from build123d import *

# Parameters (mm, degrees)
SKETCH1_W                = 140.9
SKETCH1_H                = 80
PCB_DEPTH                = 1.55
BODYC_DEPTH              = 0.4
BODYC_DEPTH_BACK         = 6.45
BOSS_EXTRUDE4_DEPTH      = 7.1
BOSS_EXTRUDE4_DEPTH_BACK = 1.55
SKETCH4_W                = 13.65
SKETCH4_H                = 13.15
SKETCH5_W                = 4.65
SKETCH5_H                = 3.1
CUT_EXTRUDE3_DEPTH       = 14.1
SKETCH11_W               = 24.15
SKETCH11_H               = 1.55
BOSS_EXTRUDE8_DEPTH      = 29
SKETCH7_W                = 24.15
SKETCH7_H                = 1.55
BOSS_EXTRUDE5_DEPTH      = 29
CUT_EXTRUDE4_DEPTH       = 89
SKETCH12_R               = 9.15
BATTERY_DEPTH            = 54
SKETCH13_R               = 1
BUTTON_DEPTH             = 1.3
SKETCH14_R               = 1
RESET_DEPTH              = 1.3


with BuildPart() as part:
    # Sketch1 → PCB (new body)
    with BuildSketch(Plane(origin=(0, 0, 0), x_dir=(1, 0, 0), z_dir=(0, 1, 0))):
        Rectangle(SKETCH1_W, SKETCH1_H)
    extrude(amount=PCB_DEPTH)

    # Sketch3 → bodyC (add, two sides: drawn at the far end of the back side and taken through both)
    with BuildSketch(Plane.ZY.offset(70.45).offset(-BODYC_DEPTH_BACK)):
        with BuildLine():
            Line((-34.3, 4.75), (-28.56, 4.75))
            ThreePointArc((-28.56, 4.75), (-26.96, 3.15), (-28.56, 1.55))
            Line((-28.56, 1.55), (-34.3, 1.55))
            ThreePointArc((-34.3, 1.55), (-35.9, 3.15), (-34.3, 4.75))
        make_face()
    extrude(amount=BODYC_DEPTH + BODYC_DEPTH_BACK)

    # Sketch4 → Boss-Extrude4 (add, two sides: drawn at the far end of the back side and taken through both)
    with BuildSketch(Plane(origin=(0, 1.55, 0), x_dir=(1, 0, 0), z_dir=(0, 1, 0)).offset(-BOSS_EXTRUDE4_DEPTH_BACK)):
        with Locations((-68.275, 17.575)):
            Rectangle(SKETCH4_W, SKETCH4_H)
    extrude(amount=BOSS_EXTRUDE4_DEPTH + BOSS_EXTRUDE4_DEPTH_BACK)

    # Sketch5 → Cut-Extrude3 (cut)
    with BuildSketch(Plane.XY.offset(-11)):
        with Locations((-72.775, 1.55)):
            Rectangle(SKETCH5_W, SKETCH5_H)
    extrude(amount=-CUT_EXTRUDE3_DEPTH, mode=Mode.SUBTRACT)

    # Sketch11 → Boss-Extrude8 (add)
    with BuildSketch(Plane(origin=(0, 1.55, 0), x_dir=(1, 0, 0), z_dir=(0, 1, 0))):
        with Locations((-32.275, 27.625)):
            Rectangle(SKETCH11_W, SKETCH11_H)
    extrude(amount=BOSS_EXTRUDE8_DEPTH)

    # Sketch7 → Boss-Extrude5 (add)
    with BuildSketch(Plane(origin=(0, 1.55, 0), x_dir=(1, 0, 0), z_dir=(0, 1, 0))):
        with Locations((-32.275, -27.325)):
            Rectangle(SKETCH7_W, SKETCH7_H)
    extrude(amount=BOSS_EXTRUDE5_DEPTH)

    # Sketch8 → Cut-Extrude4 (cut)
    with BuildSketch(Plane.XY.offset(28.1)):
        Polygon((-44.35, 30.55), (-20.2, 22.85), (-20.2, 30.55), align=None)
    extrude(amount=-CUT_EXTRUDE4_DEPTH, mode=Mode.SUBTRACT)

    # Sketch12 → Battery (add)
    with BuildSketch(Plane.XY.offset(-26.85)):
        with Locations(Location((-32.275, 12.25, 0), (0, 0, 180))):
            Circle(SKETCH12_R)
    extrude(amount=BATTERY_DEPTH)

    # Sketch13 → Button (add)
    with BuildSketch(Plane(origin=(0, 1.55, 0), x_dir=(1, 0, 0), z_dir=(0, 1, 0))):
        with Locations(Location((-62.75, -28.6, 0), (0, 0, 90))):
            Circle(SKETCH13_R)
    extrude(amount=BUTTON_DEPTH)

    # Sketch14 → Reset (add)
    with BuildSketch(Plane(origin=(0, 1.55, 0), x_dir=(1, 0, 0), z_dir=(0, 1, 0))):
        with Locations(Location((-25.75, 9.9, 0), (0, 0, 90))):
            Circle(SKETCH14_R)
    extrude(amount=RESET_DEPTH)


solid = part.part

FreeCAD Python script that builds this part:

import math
import FreeCAD as App
import Part
import Sketcher
Q = App.Units.Quantity


def add_polygon(sketch, points):
    """Adds a closed chain of lines whose ends are joined by coincident constraints."""
    first, n = sketch.GeometryCount, len(points)
    for a, b in zip(points, points[1:] + points[:1]):
        sketch.addGeometry(Part.LineSegment(App.Vector(*a, 0), App.Vector(*b, 0)), False)
    for i in range(n):
        sketch.addConstraint(Sketcher.Constraint("Coincident", first + i, 2, first + (i + 1) % n, 1))

doc = App.newDocument("Part")
body = doc.addObject("PartDesign::Body", "Body")

# Sketch on XZ plane
sketch1 = doc.addObject("Sketcher::SketchObject", "Sketch")
body.addObject(sketch1)
sketch1.AttachmentSupport = (doc.XZ_Plane, [""])
sketch1.MapMode = "FlatFace"
add_polygon(sketch1, [(-70, -40), (-70, 40), (70, 40), (70, -40)])  # lines 0-3
sketch1.addConstraint([
    Sketcher.Constraint("Vertical", 0),
    Sketcher.Constraint("Horizontal", 1),
    Sketcher.Constraint("Vertical", 2),
    Sketcher.Constraint("Horizontal", 3),
    Sketcher.Constraint("Symmetric", 0, 2, 2, 2, -1, 1),
    Sketcher.Constraint("DistanceY", 0, 1, 0, 2, Q("80 mm")),
    Sketcher.Constraint("DistanceX", 1, 1, 1, 2, Q("140.9 mm")),
])
pad1 = doc.addObject("PartDesign::Pad", "Pad")
body.addObject(pad1)
pad1.Profile = sketch1
pad1.Length = 1.55
pad1.Reversed = True

# Sketch on YZ plane
sketch2 = doc.addObject("Sketcher::SketchObject", "Sketch001")
body.addObject(sketch2)
sketch2.AttachmentSupport = (doc.YZ_Plane, [""])
sketch2.MapMode = "FlatFace"
sketch2.AttachmentOffset = App.Placement(App.Vector(0, 0, -70.45), App.Rotation())
sketch2.addGeometry([
    Part.LineSegment(App.Vector(4.8, -28.6, 0), App.Vector(4.8, -34.3, 0)),
    Part.ArcOfCircle(Part.Circle(App.Vector(3.1, -34.3, 0), App.Vector(0, 0, 1), 1.6), math.radians(180), math.radians(360)),
    Part.LineSegment(App.Vector(1.6, -34.3, 0), App.Vector(1.6, -28.6, 0)),
    Part.ArcOfCircle(Part.Circle(App.Vector(3.1, -28.6, 0), App.Vector(0, 0, 1), 1.6), math.radians(0), math.radians(180)),
], False)
sketch2.addConstraint([
    Sketcher.Constraint("Tangent", 0, 2, 1, 2),
    Sketcher.Constraint("Tangent", 1, 1, 2, 1),
    Sketcher.Constraint("Tangent", 2, 2, 3, 2),
    Sketcher.Constraint("Tangent", 3, 1, 0, 1),
    Sketcher.Constraint("Vertical", 0),
    Sketcher.Constraint("Vertical", 2),
    Sketcher.Constraint("Radius", 1, Q("1.6 mm")),
    Sketcher.Constraint("DistanceY", 0, 2, 0, 1, Q("5.74 mm")),
    Sketcher.Constraint("DistanceY", 1, 3, -1, 1, Q("34.3 mm")),
    Sketcher.Constraint("DistanceX", -1, 1, 1, 3, Q("3.15 mm")),
])
pad2 = doc.addObject("PartDesign::Pad", "Pad001")
body.addObject(pad2)
pad2.Profile = sketch2
pad2.Type = "TwoLengths"
pad2.Length = 0.4
pad2.Length2 = 6.45
pad2.Reversed = True

# Sketch on XZ plane
sketch3 = doc.addObject("Sketcher::SketchObject", "Sketch002")
body.addObject(sketch3)
sketch3.AttachmentSupport = (doc.XZ_Plane, [""])
sketch3.MapMode = "FlatFace"
sketch3.AttachmentOffset = App.Placement(App.Vector(0, 0, -1.55), App.Rotation())
add_polygon(sketch3, [(-75, -24), (-75, -11), (-61, -11), (-61, -24)])  # lines 0-3
sketch3.addConstraint([
    Sketcher.Constraint("Vertical", 0),
    Sketcher.Constraint("Horizontal", 1),
    Sketcher.Constraint("Vertical", 2),
    Sketcher.Constraint("Horizontal", 3),
    Sketcher.Constraint("DistanceY", 0, 2, -1, 1, Q("11 mm")),
    Sketcher.Constraint("DistanceX", 1, 1, 1, 2, Q("13.65 mm")),
    Sketcher.Constraint("DistanceY", 0, 1, 0, 2, Q("13.15 mm")),
    Sketcher.Constraint("DistanceX", 0, 2, -1, 1, Q("75.1 mm")),
])
pad3 = doc.addObject("PartDesign::Pad", "Pad002")
body.addObject(pad3)
pad3.Profile = sketch3
pad3.Type = "TwoLengths"
pad3.Length = 7.1
pad3.Length2 = 1.55
pad3.Reversed = True

# Sketch on XY plane
sketch4 = doc.addObject("Sketcher::SketchObject", "Sketch003")
body.addObject(sketch4)
sketch4.AttachmentSupport = (doc.XY_Plane, [""])
sketch4.MapMode = "FlatFace"
sketch4.AttachmentOffset = App.Placement(App.Vector(0, 0, -11), App.Rotation())
add_polygon(sketch4, [(-75.1, 3.1), (-75.1, 0), (-70.5, 0), (-70.5, 3.1)])  # lines 0-3
sketch4.addConstraint([
    Sketcher.Constraint("Vertical", 0),
    Sketcher.Constraint("Horizontal", 1),
    Sketcher.Constraint("Vertical", 2),
    Sketcher.Constraint("Horizontal", 3),
    Sketcher.Constraint("PointOnObject", 0, 2, -1),
    Sketcher.Constraint("DistanceY", 0, 2, 0, 1, Q("3.1 mm")),
    Sketcher.Constraint("DistanceX", 1, 1, 1, 2, Q("4.65 mm")),
    Sketcher.Constraint("DistanceX", 0, 2, -1, 1, Q("75.1 mm")),
])
pocket1 = doc.addObject("PartDesign::Pocket", "Pocket")
body.addObject(pocket1)
pocket1.Profile = sketch4
pocket1.Length = 14.1

# Sketch on XZ plane
sketch5 = doc.addObject("Sketcher::SketchObject", "Sketch004")
body.addObject(sketch5)
sketch5.AttachmentSupport = (doc.XZ_Plane, [""])
sketch5.MapMode = "FlatFace"
sketch5.AttachmentOffset = App.Placement(App.Vector(0, 0, -1.55), App.Rotation())
add_polygon(sketch5, [(-44.4, -28.4), (-44.4, -26.9), (-20.2, -26.9), (-20.2, -28.4)])  # lines 0-3
sketch5.addConstraint([
    Sketcher.Constraint("Vertical", 0),
    Sketcher.Constraint("Horizontal", 1),
    Sketcher.Constraint("Vertical", 2),
    Sketcher.Constraint("Horizontal", 3),
    Sketcher.Constraint("DistanceX", 1, 1, 1, 2, Q("24.15 mm")),
    Sketcher.Constraint("DistanceY", 0, 1, 0, 2, Q("1.55 mm")),
    Sketcher.Constraint("DistanceX", 1, 2, -1, 1, Q("20.2 mm")),
    Sketcher.Constraint("DistanceY", 2, 2, -1, 1, Q("28.4 mm")),
])
pad4 = doc.addObject("PartDesign::Pad", "Pad003")
body.addObject(pad4)
pad4.Profile = sketch5
pad4.Length = 29
pad4.Reversed = True

# Sketch on XZ plane
sketch6 = doc.addObject("Sketcher::SketchObject", "Sketch005")
body.addObject(sketch6)
sketch6.AttachmentSupport = (doc.XZ_Plane, [""])
sketch6.MapMode = "FlatFace"
sketch6.AttachmentOffset = App.Placement(App.Vector(0, 0, -1.55), App.Rotation())
add_polygon(sketch6, [(-44.4, 26.6), (-44.4, 28.1), (-20.2, 28.1), (-20.2, 26.6)])  # lines 0-3
sketch6.addConstraint([
    Sketcher.Constraint("Vertical", 0),
    Sketcher.Constraint("Horizontal", 1),
    Sketcher.Constraint("Vertical", 2),
    Sketcher.Constraint("Horizontal", 3),
    Sketcher.Constraint("DistanceX", 1, 1, 1, 2, Q("24.15 mm")),
    Sketcher.Constraint("DistanceY", 0, 1, 0, 2, Q("1.55 mm")),
    Sketcher.Constraint("DistanceY", -1, 1, 0, 2, Q("28.1 mm")),
    Sketcher.Constraint("DistanceX", 1, 2, -1, 1, Q("20.2 mm")),
])
pad5 = doc.addObject("PartDesign::Pad", "Pad004")
body.addObject(pad5)
pad5.Profile = sketch6
pad5.Length = 29
pad5.Reversed = True

# Sketch on XY plane
sketch7 = doc.addObject("Sketcher::SketchObject", "Sketch006")
body.addObject(sketch7)
sketch7.AttachmentSupport = (doc.XY_Plane, [""])
sketch7.MapMode = "FlatFace"
sketch7.AttachmentOffset = App.Placement(App.Vector(0, 0, 28.1), App.Rotation())
add_polygon(sketch7, [(-44, 31), (-20, 23), (-20, 31)])  # lines 0-2
sketch7.addConstraint([
    Sketcher.Constraint("Vertical", 1),
    Sketcher.Constraint("Horizontal", 2),
    Sketcher.Constraint("DistanceY", 1, 1, 1, 2, Q("7.7 mm")),
    Sketcher.Constraint("DistanceX", 2, 2, 2, 1, Q("24.15 mm")),
    Sketcher.Constraint("DistanceX", 0, 2, -1, 1, Q("20.2 mm")),
    Sketcher.Constraint("DistanceY", -1, 1, 0, 2, Q("22.85 mm")),
])
pocket2 = doc.addObject("PartDesign::Pocket", "Pocket001")
body.addObject(pocket2)
pocket2.Profile = sketch7
pocket2.Length = 89

# Sketch on XY plane
sketch8 = doc.addObject("Sketcher::SketchObject", "Sketch007")
body.addObject(sketch8)
sketch8.AttachmentSupport = (doc.XY_Plane, [""])
sketch8.MapMode = "FlatFace"
sketch8.AttachmentOffset = App.Placement(App.Vector(0, 0, -26.85), App.Rotation())
sketch8.addGeometry(Part.Circle(App.Vector(-32, 12, 0), App.Vector(0, 0, 1), 9), False)
sketch8.addConstraint([
    Sketcher.Constraint("Diameter", 0, Q("18.3 mm")),
    Sketcher.Constraint("DistanceY", -1, 1, 0, 3, Q("12.25 mm")),
    Sketcher.Constraint("DistanceX", 0, 3, -1, 1, Q("32.275 mm")),
])
pad6 = doc.addObject("PartDesign::Pad", "Pad005")
body.addObject(pad6)
pad6.Profile = sketch8
pad6.Length = 54

# Sketch on XZ plane
sketch9 = doc.addObject("Sketcher::SketchObject", "Sketch008")
body.addObject(sketch9)
sketch9.AttachmentSupport = (doc.XZ_Plane, [""])
sketch9.MapMode = "FlatFace"
sketch9.AttachmentOffset = App.Placement(App.Vector(0, 0, -1.55), App.Rotation())
sketch9.addGeometry(Part.Circle(App.Vector(-62.8, 28.6, 0), App.Vector(0, 0, 1), 1), False)
sketch9.addConstraint([
    Sketcher.Constraint("Diameter", 0, Q("2 mm")),
    Sketcher.Constraint("DistanceY", -1, 1, 0, 3, Q("28.6 mm")),
    Sketcher.Constraint("DistanceX", 0, 3, -1, 1, Q("62.75 mm")),
])
pad7 = doc.addObject("PartDesign::Pad", "Pad006")
body.addObject(pad7)
pad7.Profile = sketch9
pad7.Length = 1.3
pad7.Reversed = True

# Sketch on XZ plane
sketch10 = doc.addObject("Sketcher::SketchObject", "Sketch009")
body.addObject(sketch10)
sketch10.AttachmentSupport = (doc.XZ_Plane, [""])
sketch10.MapMode = "FlatFace"
sketch10.AttachmentOffset = App.Placement(App.Vector(0, 0, -1.55), App.Rotation())
sketch10.addGeometry(Part.Circle(App.Vector(-25.8, -9.9, 0), App.Vector(0, 0, 1), 1), False)
sketch10.addConstraint([
    Sketcher.Constraint("Diameter", 0, Q("2 mm")),
    Sketcher.Constraint("DistanceY", 0, 3, -1, 1, Q("9.9 mm")),
    Sketcher.Constraint("DistanceX", 0, 3, -1, 1, Q("25.75 mm")),
])
pad8 = doc.addObject("PartDesign::Pad", "Pad007")
body.addObject(pad8)
pad8.Profile = sketch10
pad8.Length = 1.3
pad8.Reversed = True

doc.recompute()
